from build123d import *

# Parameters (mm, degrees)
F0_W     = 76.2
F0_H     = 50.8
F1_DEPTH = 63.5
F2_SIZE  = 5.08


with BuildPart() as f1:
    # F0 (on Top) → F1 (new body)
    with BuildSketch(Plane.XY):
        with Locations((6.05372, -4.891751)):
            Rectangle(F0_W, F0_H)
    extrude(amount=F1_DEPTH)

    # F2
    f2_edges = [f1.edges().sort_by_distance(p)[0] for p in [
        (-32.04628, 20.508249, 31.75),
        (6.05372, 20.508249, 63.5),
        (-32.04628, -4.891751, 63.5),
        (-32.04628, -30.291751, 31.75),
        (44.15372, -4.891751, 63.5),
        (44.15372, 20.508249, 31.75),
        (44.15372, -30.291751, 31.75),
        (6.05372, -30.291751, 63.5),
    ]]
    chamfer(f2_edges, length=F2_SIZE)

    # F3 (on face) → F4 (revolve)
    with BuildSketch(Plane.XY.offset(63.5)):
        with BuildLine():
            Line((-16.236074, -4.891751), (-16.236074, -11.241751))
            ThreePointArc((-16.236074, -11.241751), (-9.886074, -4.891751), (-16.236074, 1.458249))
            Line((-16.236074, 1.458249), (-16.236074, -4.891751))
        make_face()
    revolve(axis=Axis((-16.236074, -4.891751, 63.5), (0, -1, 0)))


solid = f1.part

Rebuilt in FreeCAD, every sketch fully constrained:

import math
import FreeCAD as App
import Part
import Sketcher
from FreeCAD import Vector
Q = App.Units.Quantity


def edges_at(feature, points):
    """Names of the edges that pass closest to the given points."""
    edges = feature.Shape.Edges
    near = lambda p: min(range(len(edges)), key=lambda i: edges[i].distToShape(Part.Vertex(*p))[0])
    return sorted({f"Edge{near(p) + 1}" for p in points})


def add_polygon(sketch, points):
    """Adds a closed chain of lines whose ends are joined by coincident constraints."""
    first, n = sketch.GeometryCount, len(points)
    for a, b in zip(points, points[1:] + points[:1]):
        sketch.addGeometry(Part.LineSegment(App.Vector(*a, 0), App.Vector(*b, 0)), False)
    for i in range(n):
        sketch.addConstraint(Sketcher.Constraint("Coincident", first + i, 2, first + (i + 1) % n, 1))

doc = App.newDocument("Part")
params = doc.addObject("Spreadsheet::Sheet", "Params")
for row, (alias, value) in enumerate([
    ("sketch1_width", "3 in"),
    ("sketch1_height", "2 in"),
    ("pad1_length", "2.5 in"),
    ("chamfer_size", "0.2 in"),
    ("sketch2_radius", "0.25 in"),
    ("revolution_angle", "360 deg"),
], start=1):
    params.set(f"A{row}", alias)
    params.set(f"B{row}", "=" + value)
    params.setAlias(f"B{row}", alias)

body = doc.addObject("PartDesign::Body", "Body")

sketch1 = doc.addObject("Sketcher::SketchObject", "Sketch")
body.addObject(sketch1)
sketch1.AttachmentSupport = (doc.XY_Plane, [""])
sketch1.MapMode = "FlatFace"
add_polygon(sketch1, [(-32, 21), (-32, -30), (44, -30), (44, 21)])
sketch1.addConstraint([
    Sketcher.Constraint("Vertical", 0),
    Sketcher.Constraint("Horizontal", 1),
    Sketcher.Constraint("Vertical", 2),
    Sketcher.Constraint("Horizontal", 3),
    Sketcher.Constraint("DistanceX", 1, 1, 1, 2, Q("3 in")),
    Sketcher.Constraint("DistanceY", 0, 2, 0, 1, Q("2 in")),
    Sketcher.Constraint("DistanceX", 0, 2, -1, 1, Q("32.04628 mm")),
    Sketcher.Constraint("DistanceY", 0, 2, -1, 1, Q("30.291751 mm")),
])
sketch1.setExpression("Constraints[8]", "Params.sketch1_width")
sketch1.setExpression("Constraints[9]", "Params.sketch1_height")
pad1 = doc.addObject("PartDesign::Pad", "Pad")
body.addObject(pad1)
pad1.Profile = sketch1
pad1.setExpression("Length", "Params.pad1_length")
doc.recompute()

chamfer = doc.addObject("PartDesign::Chamfer", "Chamfer")
body.addObject(chamfer)
chamfer.Base = (pad1, edges_at(pad1, [
    (-32.046, 20.508, 31.75),
    (6.054, 20.508, 63.5),
    (-32.046, -4.892, 63.5),
    (-32.046, -30.292, 31.75),
    (44.154, -4.892, 63.5),
    (44.154, 20.508, 31.75),
    (44.154, -30.292, 31.75),
    (6.054, -30.292, 63.5),
]))
chamfer.setExpression("Size", "Params.chamfer_size")

sketch2 = doc.addObject("Sketcher::SketchObject", "Sketch001")
body.addObject(sketch2)
sketch2.AttachmentSupport = (doc.XY_Plane, [""])
sketch2.MapMode = "FlatFace"
sketch2.AttachmentOffset = App.Placement(Vector(0, 0, 2.5 * 25.4), App.Rotation())
sketch2.addGeometry([
    Part.ArcOfCircle(Part.Circle(Vector(-16, -5, 0), Vector(0, 0, 1), 6), math.radians(-90), math.radians(90)),
    Part.LineSegment(Vector(-16, 1, 0), Vector(-16, -11, 0)),
], False)
sketch2.addGeometry(Part.LineSegment(Vector(-16, 1, 0), Vector(-16, -11, 0)), True)
sketch2.addConstraint([
    Sketcher.Constraint("Coincident", 0, 1, 1, 2),
    Sketcher.Constraint("Coincident", 1, 1, 0, 2),
    Sketcher.Constraint("Vertical", 1),
    Sketcher.Constraint("Vertical", 2),
    Sketcher.Constraint("Coincident", 2, 1, 1, 1),
    Sketcher.Constraint("Equal", 1, 2),
    Sketcher.Constraint("Radius", 0, Q("0.25 in")),
    Sketcher.Constraint("DistanceY", 0, 3, -1, 1, Q("4.891751 mm")),
    Sketcher.Constraint("DistanceX", 0, 3, -1, 1, Q("16.236074 mm")),
    Sketcher.Constraint("DistanceX", 0, 1, -1, 1, Q("16.236074 mm")),
])
sketch2.setExpression("Constraints[6]", "Params.sketch2_radius")
revolution = doc.addObject("PartDesign::Revolution", "Revolution")
body.addObject(revolution)
revolution.Profile = sketch2
revolution.ReferenceAxis = (sketch2, ["Axis0"])
revolution.setExpression("Angle", "Params.revolution_angle")

doc.recompute()
